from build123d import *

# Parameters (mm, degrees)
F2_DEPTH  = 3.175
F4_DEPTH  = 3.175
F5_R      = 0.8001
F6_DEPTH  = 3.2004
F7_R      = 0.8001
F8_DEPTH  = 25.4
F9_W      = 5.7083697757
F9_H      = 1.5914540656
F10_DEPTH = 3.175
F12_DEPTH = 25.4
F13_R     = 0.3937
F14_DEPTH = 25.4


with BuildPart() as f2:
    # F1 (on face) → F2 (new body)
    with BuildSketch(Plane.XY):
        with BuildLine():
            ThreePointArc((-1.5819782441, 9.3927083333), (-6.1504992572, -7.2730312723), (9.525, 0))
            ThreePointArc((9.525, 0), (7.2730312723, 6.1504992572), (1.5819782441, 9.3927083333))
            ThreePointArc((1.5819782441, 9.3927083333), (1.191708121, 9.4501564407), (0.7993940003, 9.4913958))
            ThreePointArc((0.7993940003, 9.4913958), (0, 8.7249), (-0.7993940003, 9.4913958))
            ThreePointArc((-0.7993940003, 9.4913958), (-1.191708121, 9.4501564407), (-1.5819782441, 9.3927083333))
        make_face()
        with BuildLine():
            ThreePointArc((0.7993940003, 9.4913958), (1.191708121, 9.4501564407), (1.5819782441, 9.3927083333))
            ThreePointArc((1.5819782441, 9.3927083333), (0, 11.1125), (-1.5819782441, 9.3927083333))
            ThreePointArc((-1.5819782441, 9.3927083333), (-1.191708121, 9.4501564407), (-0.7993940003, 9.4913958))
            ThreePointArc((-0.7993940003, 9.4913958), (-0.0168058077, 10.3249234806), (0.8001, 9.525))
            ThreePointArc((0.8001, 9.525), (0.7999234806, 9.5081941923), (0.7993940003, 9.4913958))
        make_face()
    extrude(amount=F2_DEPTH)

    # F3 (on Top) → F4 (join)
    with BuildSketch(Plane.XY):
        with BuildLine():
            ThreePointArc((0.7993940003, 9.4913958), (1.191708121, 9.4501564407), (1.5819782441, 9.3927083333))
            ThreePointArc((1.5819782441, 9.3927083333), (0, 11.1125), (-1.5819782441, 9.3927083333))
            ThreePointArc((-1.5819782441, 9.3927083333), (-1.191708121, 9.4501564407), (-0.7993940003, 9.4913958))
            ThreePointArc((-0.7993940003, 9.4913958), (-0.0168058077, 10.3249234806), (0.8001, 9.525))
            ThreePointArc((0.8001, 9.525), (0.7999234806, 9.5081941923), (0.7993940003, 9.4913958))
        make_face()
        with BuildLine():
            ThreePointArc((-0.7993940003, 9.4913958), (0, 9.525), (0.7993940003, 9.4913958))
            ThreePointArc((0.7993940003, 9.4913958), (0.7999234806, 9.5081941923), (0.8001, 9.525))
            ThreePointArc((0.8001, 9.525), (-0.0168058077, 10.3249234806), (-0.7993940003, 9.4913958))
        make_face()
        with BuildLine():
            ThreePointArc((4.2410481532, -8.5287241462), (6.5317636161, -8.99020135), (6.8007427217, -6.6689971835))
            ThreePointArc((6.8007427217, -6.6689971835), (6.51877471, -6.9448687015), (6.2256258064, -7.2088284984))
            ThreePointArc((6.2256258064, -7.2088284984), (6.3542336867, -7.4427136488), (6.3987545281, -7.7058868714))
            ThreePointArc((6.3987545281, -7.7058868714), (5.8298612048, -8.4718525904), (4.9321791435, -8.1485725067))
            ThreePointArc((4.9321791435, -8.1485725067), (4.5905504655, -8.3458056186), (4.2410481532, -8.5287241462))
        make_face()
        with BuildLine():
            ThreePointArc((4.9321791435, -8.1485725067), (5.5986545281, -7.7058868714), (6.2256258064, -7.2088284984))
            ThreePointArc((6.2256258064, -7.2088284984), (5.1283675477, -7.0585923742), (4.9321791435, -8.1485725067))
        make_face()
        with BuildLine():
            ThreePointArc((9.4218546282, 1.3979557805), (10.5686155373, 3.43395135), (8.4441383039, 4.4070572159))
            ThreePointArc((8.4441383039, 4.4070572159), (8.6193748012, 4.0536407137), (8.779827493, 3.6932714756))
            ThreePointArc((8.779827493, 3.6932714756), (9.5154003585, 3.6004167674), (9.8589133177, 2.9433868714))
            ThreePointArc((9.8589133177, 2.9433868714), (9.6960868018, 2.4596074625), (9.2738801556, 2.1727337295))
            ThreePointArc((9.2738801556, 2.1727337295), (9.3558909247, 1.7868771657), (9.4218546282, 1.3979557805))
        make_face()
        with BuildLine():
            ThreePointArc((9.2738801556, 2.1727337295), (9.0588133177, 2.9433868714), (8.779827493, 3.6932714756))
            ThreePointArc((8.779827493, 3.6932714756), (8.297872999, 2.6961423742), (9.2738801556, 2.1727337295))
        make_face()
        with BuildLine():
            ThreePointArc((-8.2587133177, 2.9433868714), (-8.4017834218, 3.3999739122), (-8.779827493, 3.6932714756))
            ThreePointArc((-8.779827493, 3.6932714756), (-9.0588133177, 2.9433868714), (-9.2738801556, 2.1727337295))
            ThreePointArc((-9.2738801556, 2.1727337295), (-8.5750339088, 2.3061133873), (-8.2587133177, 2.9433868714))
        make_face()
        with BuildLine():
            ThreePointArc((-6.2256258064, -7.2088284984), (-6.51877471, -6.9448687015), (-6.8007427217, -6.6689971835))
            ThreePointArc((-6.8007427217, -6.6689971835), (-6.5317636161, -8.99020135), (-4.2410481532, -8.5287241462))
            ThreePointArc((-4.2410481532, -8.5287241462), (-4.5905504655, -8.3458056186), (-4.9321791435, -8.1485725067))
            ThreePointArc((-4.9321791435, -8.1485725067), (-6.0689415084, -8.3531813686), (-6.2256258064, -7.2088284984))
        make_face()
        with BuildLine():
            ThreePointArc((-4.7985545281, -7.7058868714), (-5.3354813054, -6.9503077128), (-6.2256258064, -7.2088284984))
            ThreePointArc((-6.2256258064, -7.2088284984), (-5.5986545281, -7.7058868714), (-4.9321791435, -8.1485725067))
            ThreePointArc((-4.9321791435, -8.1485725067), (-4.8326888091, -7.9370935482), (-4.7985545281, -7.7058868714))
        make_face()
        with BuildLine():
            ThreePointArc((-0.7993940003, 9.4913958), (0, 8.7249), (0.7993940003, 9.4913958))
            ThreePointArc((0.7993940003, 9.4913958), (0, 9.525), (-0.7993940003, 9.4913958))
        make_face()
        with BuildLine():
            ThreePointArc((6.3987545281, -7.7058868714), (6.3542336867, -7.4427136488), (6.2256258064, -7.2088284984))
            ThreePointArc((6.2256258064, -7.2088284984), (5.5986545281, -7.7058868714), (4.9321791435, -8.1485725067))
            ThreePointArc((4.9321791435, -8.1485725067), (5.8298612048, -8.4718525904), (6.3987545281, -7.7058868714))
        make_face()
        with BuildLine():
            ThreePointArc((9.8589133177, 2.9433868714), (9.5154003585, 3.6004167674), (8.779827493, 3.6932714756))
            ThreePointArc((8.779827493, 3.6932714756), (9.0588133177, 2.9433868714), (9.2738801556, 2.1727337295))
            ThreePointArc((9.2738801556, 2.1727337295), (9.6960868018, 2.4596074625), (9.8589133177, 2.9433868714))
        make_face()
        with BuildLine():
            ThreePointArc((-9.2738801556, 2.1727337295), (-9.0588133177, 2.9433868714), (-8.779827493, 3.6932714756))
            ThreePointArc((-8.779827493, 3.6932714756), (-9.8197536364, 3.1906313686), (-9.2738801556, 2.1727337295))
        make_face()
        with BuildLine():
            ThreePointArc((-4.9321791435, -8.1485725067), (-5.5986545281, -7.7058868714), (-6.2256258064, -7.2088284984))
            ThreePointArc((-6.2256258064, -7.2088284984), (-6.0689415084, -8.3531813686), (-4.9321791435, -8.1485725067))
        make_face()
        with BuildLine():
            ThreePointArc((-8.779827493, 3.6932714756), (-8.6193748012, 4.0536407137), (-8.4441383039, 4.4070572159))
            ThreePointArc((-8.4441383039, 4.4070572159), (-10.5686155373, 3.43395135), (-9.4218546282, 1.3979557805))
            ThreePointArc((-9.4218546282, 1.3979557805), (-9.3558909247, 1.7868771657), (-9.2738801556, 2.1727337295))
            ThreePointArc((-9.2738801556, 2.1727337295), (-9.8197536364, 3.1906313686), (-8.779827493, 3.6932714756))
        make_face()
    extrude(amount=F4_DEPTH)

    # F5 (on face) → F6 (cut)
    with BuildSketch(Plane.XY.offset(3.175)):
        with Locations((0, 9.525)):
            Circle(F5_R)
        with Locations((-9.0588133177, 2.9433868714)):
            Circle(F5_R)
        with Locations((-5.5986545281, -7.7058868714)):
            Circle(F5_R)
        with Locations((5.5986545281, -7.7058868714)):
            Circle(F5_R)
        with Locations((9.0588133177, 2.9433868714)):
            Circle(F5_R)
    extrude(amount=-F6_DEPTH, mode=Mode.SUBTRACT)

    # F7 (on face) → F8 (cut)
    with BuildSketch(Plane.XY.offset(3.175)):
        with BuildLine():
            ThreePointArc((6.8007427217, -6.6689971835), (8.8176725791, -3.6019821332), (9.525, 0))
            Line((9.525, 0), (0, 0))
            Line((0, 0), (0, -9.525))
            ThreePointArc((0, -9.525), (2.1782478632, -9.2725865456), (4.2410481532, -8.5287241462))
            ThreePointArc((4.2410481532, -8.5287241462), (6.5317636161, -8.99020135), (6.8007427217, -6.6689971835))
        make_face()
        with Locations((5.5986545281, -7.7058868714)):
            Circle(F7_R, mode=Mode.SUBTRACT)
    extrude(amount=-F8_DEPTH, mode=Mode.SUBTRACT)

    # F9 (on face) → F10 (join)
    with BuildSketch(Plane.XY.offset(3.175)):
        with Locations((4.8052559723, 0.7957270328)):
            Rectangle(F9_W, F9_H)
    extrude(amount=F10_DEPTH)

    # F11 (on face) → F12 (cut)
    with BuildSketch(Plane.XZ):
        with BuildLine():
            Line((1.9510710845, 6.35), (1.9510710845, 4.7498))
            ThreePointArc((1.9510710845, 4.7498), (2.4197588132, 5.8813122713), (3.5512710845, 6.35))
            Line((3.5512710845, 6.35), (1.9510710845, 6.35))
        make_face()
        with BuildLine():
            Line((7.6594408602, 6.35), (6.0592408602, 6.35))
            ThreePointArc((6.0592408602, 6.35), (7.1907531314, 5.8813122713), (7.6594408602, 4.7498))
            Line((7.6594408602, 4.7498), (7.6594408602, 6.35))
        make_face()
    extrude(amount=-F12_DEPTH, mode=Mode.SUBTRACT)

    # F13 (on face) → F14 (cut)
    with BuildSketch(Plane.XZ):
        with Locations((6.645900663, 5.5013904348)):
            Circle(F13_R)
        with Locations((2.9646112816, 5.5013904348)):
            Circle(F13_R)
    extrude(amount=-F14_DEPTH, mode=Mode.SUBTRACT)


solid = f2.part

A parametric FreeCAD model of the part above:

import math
import FreeCAD as App
import Part
import Sketcher
Q = App.Units.Quantity


def add_polygon(sketch, points):
    """Adds a closed chain of lines whose ends are joined by coincident constraints."""
    first, n = sketch.GeometryCount, len(points)
    for a, b in zip(points, points[1:] + points[:1]):
        sketch.addGeometry(Part.LineSegment(App.Vector(*a, 0), App.Vector(*b, 0)), False)
    for i in range(n):
        sketch.addConstraint(Sketcher.Constraint("Coincident", first + i, 2, first + (i + 1) % n, 1))

doc = App.newDocument("Part")
body = doc.addObject("PartDesign::Body", "Body")

sketch1 = doc.addObject("Sketcher::SketchObject", "Sketch")
body.addObject(sketch1)
sketch1.AttachmentSupport = (doc.XY_Plane, [""])
sketch1.MapMode = "FlatFace"
sketch1.addGeometry([
    Part.ArcOfCircle(Part.Circle(App.Vector(0, 0, 0), App.Vector(0, 0, 1), 9.525), math.radians(99.560384), math.radians(360)),
    Part.ArcOfCircle(Part.Circle(App.Vector(0, 0, 0), App.Vector(0, 0, 1), 9.525), math.radians(0), math.radians(80.439616)),
    Part.ArcOfCircle(Part.Circle(App.Vector(0, 9.525, 0), App.Vector(0, 0, 1), 1.5875), math.radians(-4.780192), math.radians(184.780192)),
    Part.ArcOfCircle(Part.Circle(App.Vector(0, 9.525, 0), App.Vector(0, 0, 1), 0.8001), math.radians(-177.592869), math.radians(-2.407131)),
    Part.ArcOfCircle(Part.Circle(App.Vector(0, 9.525, 0), App.Vector(0, 0, 1), 0.8001), math.radians(0), math.radians(182.407131)),
    Part.ArcOfCircle(Part.Circle(App.Vector(0, 9.525, 0), App.Vector(0, 0, 1), 0.8001), math.radians(-2.407131), math.radians(0)),
], False)
sketch1.addConstraint([
    Sketcher.Constraint("Tangent", 0, 2, 1, 1),
    Sketcher.Constraint("Coincident", 1, 2, 2, 1),
    Sketcher.Constraint("Coincident", 2, 2, 0, 1),
    Sketcher.Constraint("Tangent", 3, 1, 4, 2),
    Sketcher.Constraint("Tangent", 4, 1, 5, 2),
    Sketcher.Constraint("Tangent", 5, 1, 3, 2),
    Sketcher.Constraint("Coincident", 0, 3, -1, 1),
    Sketcher.Constraint("Coincident", 3, 3, 2, 3),
    Sketcher.Constraint("Equal", 0, 1),
    Sketcher.Constraint("Symmetric", 3, 1, 5, 1, -2),
    Sketcher.Constraint("PointOnObject", 0, 2, -1),
    Sketcher.Constraint("Horizontal", 5, 3, 4, 1),
    Sketcher.Constraint("Radius", 0, Q("0.375 in")),
    Sketcher.Constraint("Radius", 2, Q("0.0625 in")),
    Sketcher.Constraint("Radius", 3, Q("0.0315 in")),
    Sketcher.Constraint("DistanceY", -1, 1, 2, 3, Q("0.375 in")),
    Sketcher.Constraint("DistanceX", 3, 1, -1, 1, 0.799394),
])
pad1 = doc.addObject("PartDesign::Pad", "Pad")
body.addObject(pad1)
pad1.Profile = sketch1
pad1.Length = Q("0.125 in")

sketch2 = doc.addObject("Sketcher::SketchObject", "Sketch001")
body.addObject(sketch2)
sketch2.AttachmentSupport = (doc.XY_Plane, [""])
sketch2.MapMode = "FlatFace"
sketch2.addGeometry([
    Part.ArcOfCircle(Part.Circle(App.Vector(0, 0, 0), App.Vector(0, 0, 1), 9.525), math.radians(80.439616), math.radians(85.185738)),
    Part.ArcOfCircle(Part.Circle(App.Vector(0, 9.525, 0), App.Vector(0, 0, 1), 1.5875), math.radians(-4.780192), math.radians(184.780192)),
    Part.ArcOfCircle(Part.Circle(App.Vector(0, 0, 0), App.Vector(0, 0, 1), 9.525), math.radians(94.814262), math.radians(99.560384)),
    Part.ArcOfCircle(Part.Circle(App.Vector(0, 9.525, 0), App.Vector(0, 0, 1), 0.8001), math.radians(-177.592869), math.radians(-2.407131)),
    Part.ArcOfCircle(Part.Circle(App.Vector(5.598655, -7.705887, 0), App.Vector(0, 0, 1), 1.5875), math.radians(-148.780192), math.radians(40.780192)),
    Part.ArcOfCircle(Part.Circle(App.Vector(0, 0, 0), App.Vector(0, 0, 1), 9.525), math.radians(-49.185738), math.radians(-44.439616)),
    Part.ArcOfCircle(Part.Circle(App.Vector(5.598655, -7.705887, 0), App.Vector(0, 0, 1), 0.8001), math.radians(38.407131), math.radians(213.592869)),
    Part.ArcOfCircle(Part.Circle(App.Vector(0, 0, 0), App.Vector(0, 0, 1), 9.525), math.radians(-63.560384), math.radians(-58.814262)),
    Part.ArcOfCircle(Part.Circle(App.Vector(9.058813, 2.943387, 0), App.Vector(0, 0, 1), 1.5875), math.radians(-76.780192), math.radians(112.780192)),
    Part.ArcOfCircle(Part.Circle(App.Vector(0, 0, 0), App.Vector(0, 0, 1), 9.525), math.radians(22.814262), math.radians(27.560384)),
    Part.ArcOfCircle(Part.Circle(App.Vector(9.058813, 2.943387, 0), App.Vector(0, 0, 1), 0.8001), math.radians(110.407131), math.radians(285.592869)),
    Part.ArcOfCircle(Part.Circle(App.Vector(0, 0, 0), App.Vector(0, 0, 1), 9.525), math.radians(8.439616), math.radians(13.185738)),
    Part.ArcOfCircle(Part.Circle(App.Vector(-9.058813, 2.943387, 0), App.Vector(0, 0, 1), 0.8001), math.radians(0), math.radians(69.592869)),
    Part.ArcOfCircle(Part.Circle(App.Vector(0, 0, 0), App.Vector(0, 0, 1), 9.525), math.radians(152.439616), math.radians(157.185738)),
    Part.ArcOfCircle(Part.Circle(App.Vector(-9.058813, 2.943387, 0), App.Vector(0, 0, 1), 1.5875), math.radians(67.219808), math.radians(256.780192)),
    Part.ArcOfCircle(Part.Circle(App.Vector(0, 0, 0), App.Vector(0, 0, 1), 9.525), math.radians(166.814262), math.radians(171.560384)),
    Part.ArcOfCircle(Part.Circle(App.Vector(-9.058813, 2.943387, 0), App.Vector(0, 0, 1), 0.8001), math.radians(-105.592869), math.radians(0)),
    Part.ArcOfCircle(Part.Circle(App.Vector(0, 0, 0), App.Vector(0, 0, 1), 9.525), math.radians(-135.560384), math.radians(-130.814262)),
    Part.ArcOfCircle(Part.Circle(App.Vector(-5.598655, -7.705887, 0), App.Vector(0, 0, 1), 1.5875), math.radians(139.219808), math.radians(328.780192)),
    Part.ArcOfCircle(Part.Circle(App.Vector(0, 0, 0), App.Vector(0, 0, 1), 9.525), math.radians(-121.185738), math.radians(-116.439616)),
    Part.ArcOfCircle(Part.Circle(App.Vector(-5.598655, -7.705887, 0), App.Vector(0, 0, 1), 0.8001), math.radians(-33.592869), math.radians(0)),
    Part.ArcOfCircle(Part.Circle(App.Vector(-5.598655, -7.705887, 0), App.Vector(0, 0, 1), 0.8001), math.radians(0), math.radians(141.592869)),
], False)
sketch2.addConstraint([
    Sketcher.Constraint("Coincident", 0, 1, 1, 1),
    Sketcher.Constraint("Coincident", 1, 2, 2, 2),
    Sketcher.Constraint("Coincident", 2, 1, 3, 1),
    Sketcher.Constraint("Coincident", 3, 2, 0, 2),
    Sketcher.Constraint("Coincident", 4, 2, 5, 2),
    Sketcher.Constraint("Coincident", 5, 1, 6, 1),
    Sketcher.Constraint("Coincident", 6, 2, 7, 2),
    Sketcher.Constraint("Coincident", 7, 1, 4, 1),
    Sketcher.Constraint("Coincident", 8, 2, 9, 2),
    Sketcher.Constraint("Coincident", 9, 1, 10, 1),
    Sketcher.Constraint("Coincident", 10, 2, 11, 2),
    Sketcher.Constraint("Coincident", 11, 1, 8, 1),
    Sketcher.Constraint("Coincident", 12, 2, 13, 2),
    Sketcher.Constraint("Coincident", 13, 1, 14, 1),
    Sketcher.Constraint("Coincident", 14, 2, 15, 2),
    Sketcher.Constraint("Coincident", 15, 1, 16, 1),
    Sketcher.Constraint("Tangent", 16, 2, 12, 1),
    Sketcher.Constraint("Coincident", 17, 1, 18, 1),
    Sketcher.Constraint("Coincident", 18, 2, 19, 2),
    Sketcher.Constraint("Coincident", 19, 1, 20, 1),
    Sketcher.Constraint("Tangent", 20, 2, 21, 1),
    Sketcher.Constraint("Coincident", 21, 2, 17, 2),
    Sketcher.Constraint("Coincident", 0, 3, -1, 1),
    Sketcher.Constraint("Coincident", 2, 3, -1, 1),
    Sketcher.Constraint("Coincident", 5, 3, -1, 1),
    Sketcher.Constraint("Coincident", 7, 3, -1, 1),
    Sketcher.Constraint("Coincident", 9, 3, -1, 1),
    Sketcher.Constraint("Coincident", 11, 3, -1, 1),
    Sketcher.Constraint("Coincident", 13, 3, -1, 1),
    Sketcher.Constraint("Coincident", 15, 3, -1, 1),
    Sketcher.Constraint("Coincident", 17, 3, -1, 1),
    Sketcher.Constraint("Coincident", 19, 3, -1, 1),
    Sketcher.Constraint("Coincident", 3, 3, 1, 3),
    Sketcher.Constraint("Coincident", 6, 3, 4, 3),
    Sketcher.Constraint("Coincident", 10, 3, 8, 3),
    Sketcher.Constraint("Coincident", 14, 3, 12, 3),
    Sketcher.Constraint("Coincident", 20, 3, 18, 3),
    Sketcher.Constraint("Equal", 0, 2),
    Sketcher.Constraint("Equal", 1, 4),
    Sketcher.Constraint("Equal", 2, 5),
    Sketcher.Constraint("Equal", 3, 6),
    Sketcher.Constraint("Equal", 5, 7),
    Sketcher.Constraint("Equal", 4, 8),
    Sketcher.Constraint("Equal", 7, 9),
    Sketcher.Constraint("Equal", 6, 10),
    Sketcher.Constraint("Equal", 9, 11),
    Sketcher.Constraint("Equal", 10, 12),
    Sketcher.Constraint("Equal", 11, 13),
    Sketcher.Constraint("Equal", 8, 14),
    Sketcher.Constraint("Equal", 13, 15),
    Sketcher.Constraint("Equal", 12, 16),
    Sketcher.Constraint("Equal", 15, 17),
    Sketcher.Constraint("Equal", 14, 18),
    Sketcher.Constraint("Equal", 17, 19),
    Sketcher.Constraint("Equal", 16, 20),
    Sketcher.Constraint("Equal", 20, 21),
    Sketcher.Constraint("Symmetric", 8, 3, 12, 3, -2),
    Sketcher.Constraint("Symmetric", 4, 3, 18, 3, -2),
    Sketcher.Constraint("PointOnObject", 1, 3, -2),
    Sketcher.Constraint("Horizontal", 14, 3, 16, 2),
    Sketcher.Constraint("Horizontal", 21, 3, 20, 2),
    Sketcher.Constraint("Radius", 0, Q("0.375 in")),
    Sketcher.Constraint("Radius", 1, Q("0.0625 in")),
    Sketcher.Constraint("Radius", 3, Q("0.0315 in")),
    Sketcher.Constraint("DistanceY", -1, 1, 1, 3, Q("0.375 in")),
    Sketcher.Constraint("DistanceX", 8, 2, 8, 3, Q("0.0241998 in")),
    Sketcher.Constraint("DistanceY", 11, 1, 8, 2, 3.009101),
    Sketcher.Constraint("DistanceY", 5, 1, -1, 1, 7.208828),
    Sketcher.Constraint("DistanceX", -1, 1, 6, 2, 4.932179),
])
pad2 = doc.addObject("PartDesign::Pad", "Pad001")
body.addObject(pad2)
pad2.Profile = sketch2
pad2.Length = Q("0.125 in")

sketch3 = doc.addObject("Sketcher::SketchObject", "Sketch002")
body.addObject(sketch3)
sketch3.AttachmentSupport = (doc.XY_Plane, [""])
sketch3.MapMode = "FlatFace"
sketch3.AttachmentOffset = App.Placement(App.Vector(0, 0, 0.125 * 25.4), App.Rotation())
sketch3.addGeometry([
    Part.Circle(App.Vector(0, 9.525, 0), App.Vector(0, 0, 1), 0.8001),
    Part.Circle(App.Vector(-9.058813, 2.943387, 0), App.Vector(0, 0, 1), 0.8001),
    Part.Circle(App.Vector(-5.598655, -7.705887, 0), App.Vector(0, 0, 1), 0.8001),
    Part.Circle(App.Vector(5.598655, -7.705887, 0), App.Vector(0, 0, 1), 0.8001),
    Part.Circle(App.Vector(9.058813, 2.943387, 0), App.Vector(0, 0, 1), 0.8001),
], False)
sketch3.addConstraint([
    Sketcher.Constraint("Equal", 0, 1),
    Sketcher.Constraint("Equal", 1, 2),
    Sketcher.Constraint("Equal", 2, 3),
    Sketcher.Constraint("Equal", 3, 4),
    Sketcher.Constraint("Symmetric", 2, 3, 3, 3, -2),
    Sketcher.Constraint("Symmetric", 1, 3, 4, 3, -2),
    Sketcher.Constraint("PointOnObject", 0, 3, -2),
    Sketcher.Constraint("Diameter", 0, Q("0.063 in")),
    Sketcher.Constraint("DistanceY", -1, 1, 0, 3, Q("0.375 in")),
    Sketcher.Constraint("DistanceX", 1, 3, 2, 3, 3.460159),
    Sketcher.Constraint("DistanceX", 2, 3, 3, 3, 11.197309),
    Sketcher.Constraint("DistanceY", -1, 1, 1, 3, 2.943387),
    Sketcher.Constraint("DistanceY", 2, 3, -1, 1, 7.705887),
])
pocket1 = doc.addObject("PartDesign::Pocket", "Pocket")
body.addObject(pocket1)
pocket1.Profile = sketch3
pocket1.Length = Q("0.126 in")

sketch4 = doc.addObject("Sketcher::SketchObject", "Sketch003")
body.addObject(sketch4)
sketch4.AttachmentSupport = (doc.XY_Plane, [""])
sketch4.MapMode = "FlatFace"
sketch4.AttachmentOffset = App.Placement(App.Vector(0, 0, 0.125 * 25.4), App.Rotation())
sketch4.addGeometry([
    Part.ArcOfCircle(Part.Circle(App.Vector(0, 0, 0), App.Vector(0, 0, 1), 9.525), math.radians(-44.439616), math.radians(0)),
    Part.LineSegment(App.Vector(9.525, 0, 0), App.Vector(0, 0, 0)),
    Part.LineSegment(App.Vector(0, 0, 0), App.Vector(0, -9.525, 0)),
    Part.ArcOfCircle(Part.Circle(App.Vector(0, 0, 0), App.Vector(0, 0, 1), 9.525), math.radians(-90), math.radians(-63.560384)),
    Part.ArcOfCircle(Part.Circle(App.Vector(5.598655, -7.705887, 0), App.Vector(0, 0, 1), 1.5875), math.radians(-148.780192), math.radians(40.780192)),
    Part.Circle(App.Vector(5.598655, -7.705887, 0), App.Vector(0, 0, 1), 0.8001),
], False)
sketch4.addConstraint([
    Sketcher.Constraint("Coincident", 0, 2, 1, 1),
    Sketcher.Constraint("Coincident", 1, 2, 2, 1),
    Sketcher.Constraint("Coincident", 2, 2, 3, 1),
    Sketcher.Constraint("Coincident", 3, 2, 4, 1),
    Sketcher.Constraint("Coincident", 4, 2, 0, 1),
    Sketcher.Constraint("Horizontal", 1),
    Sketcher.Constraint("Vertical", 2),
    Sketcher.Constraint("Coincident", 0, 3, -1, 1),
    Sketcher.Constraint("Coincident", 3, 3, -1, 1),
    Sketcher.Constraint("Coincident", 1, 2, -1, 1),
    Sketcher.Constraint("Coincident", 5, 3, 4, 3),
    Sketcher.Constraint("Equal", 0, 3),
    Sketcher.Constraint("Diameter", 5, Q("0.063 in")),
    Sketcher.Constraint("Radius", 0, Q("0.375 in")),
    Sketcher.Constraint("Radius", 4, Q("0.0625 in")),
    Sketcher.Constraint("DistanceX", -1, 1, 3, 2, 4.241048),
    Sketcher.Constraint("DistanceX", 4, 3, 4, 2, 1.202088),
])
pocket2 = doc.addObject("PartDesign::Pocket", "Pocket001")
body.addObject(pocket2)
pocket2.Profile = sketch4
pocket2.Length = Q("1 in")

sketch5 = doc.addObject("Sketcher::SketchObject", "Sketch004")
body.addObject(sketch5)
sketch5.AttachmentSupport = (doc.XY_Plane, [""])
sketch5.MapMode = "FlatFace"
sketch5.AttachmentOffset = App.Placement(App.Vector(0, 0, 0.125 * 25.4), App.Rotation())
add_polygon(sketch5, [(1.951071, 1.591454), (1.951071, 0), (7.659441, 0), (7.659441, 1.591454)])
sketch5.addConstraint([
    Sketcher.Constraint("Vertical", 0),
    Sketcher.Constraint("Horizontal", 1),
    Sketcher.Constraint("Vertical", 2),
    Sketcher.Constraint("Horizontal", 3),
    Sketcher.Constraint("PointOnObject", 0, 2, -1),
    Sketcher.Constraint("DistanceX", 1, 1, 1, 2, 5.70837),
    Sketcher.Constraint("DistanceY", 0, 2, 0, 1, 1.591454),
    Sketcher.Constraint("DistanceX", -1, 1, 0, 2, 1.951071),
])
pad3 = doc.addObject("PartDesign::Pad", "Pad002")
body.addObject(pad3)
pad3.Profile = sketch5
pad3.Length = Q("0.125 in")

sketch6 = doc.addObject("Sketcher::SketchObject", "Sketch005")
body.addObject(sketch6)
sketch6.AttachmentSupport = (doc.XZ_Plane, [""])
sketch6.MapMode = "FlatFace"
sketch6.addGeometry([
    Part.LineSegment(App.Vector(1.951071, 6.35, 0), App.Vector(1.951071, 4.7498, 0)),
    Part.ArcOfCircle(Part.Circle(App.Vector(3.551271, 4.7498, 0), App.Vector(0, 0, 1), 1.6002), math.radians(90), math.radians(180)),
    Part.LineSegment(App.Vector(3.551271, 6.35, 0), App.Vector(1.951071, 6.35, 0)),
    Part.LineSegment(App.Vector(7.659441, 6.35, 0), App.Vector(6.059241, 6.35, 0)),
    Part.ArcOfCircle(Part.Circle(App.Vector(6.059241, 4.7498, 0), App.Vector(0, 0, 1), 1.6002), math.radians(0), math.radians(90)),
    Part.LineSegment(App.Vector(7.659441, 4.7498, 0), App.Vector(7.659441, 6.35, 0)),
], False)
sketch6.addConstraint([
    Sketcher.Constraint("Tangent", 0, 2, 1, 2),
    Sketcher.Constraint("Tangent", 1, 1, 2, 1),
    Sketcher.Constraint("Coincident", 2, 2, 0, 1),
    Sketcher.Constraint("Tangent", 3, 2, 4, 2),
    Sketcher.Constraint("Tangent", 4, 1, 5, 1),
    Sketcher.Constraint("Coincident", 5, 2, 3, 1),
    Sketcher.Constraint("Vertical", 0),
    Sketcher.Constraint("Horizontal", 2),
    Sketcher.Constraint("Horizontal", 3),
    Sketcher.Constraint("Vertical", 5),
    Sketcher.Constraint("Equal", 1, 4),
    Sketcher.Constraint("Horizontal", 1, 3, 4, 3),
    Sketcher.Constraint("Radius", 1, Q("0.063 in")),
    Sketcher.Constraint("DistanceY", -1, 1, 1, 1, Q("0.25 in")),
    Sketcher.Constraint("DistanceX", -1, 1, 1, 3, 3.551271),
    Sketcher.Constraint("DistanceX", -1, 1, 4, 3, 6.059241),
])
pocket3 = doc.addObject("PartDesign::Pocket", "Pocket002")
body.addObject(pocket3)
pocket3.Profile = sketch6
pocket3.Length = Q("1 in")

sketch7 = doc.addObject("Sketcher::SketchObject", "Sketch006")
body.addObject(sketch7)
sketch7.AttachmentSupport = (doc.XZ_Plane, [""])
sketch7.MapMode = "FlatFace"
sketch7.addGeometry([
    Part.Circle(App.Vector(6.645901, 5.50139, 0), App.Vector(0, 0, 1), 0.3937),
    Part.Circle(App.Vector(2.964611, 5.50139, 0), App.Vector(0, 0, 1), 0.3937),
], False)
sketch7.addConstraint([
    Sketcher.Constraint("Equal", 0, 1),
    Sketcher.Constraint("Horizontal", 0, 3, 1, 3),
    Sketcher.Constraint("Diameter", 0, Q("0.031 in")),
    Sketcher.Constraint("DistanceX", -1, 1, 0, 3, 6.645901),
    Sketcher.Constraint("DistanceY", -1, 1, 0, 3, 5.50139),
    Sketcher.Constraint("DistanceX", -1, 1, 1, 3, 2.964611),
])
pocket4 = doc.addObject("PartDesign::Pocket", "Pocket003")
body.addObject(pocket4)
pocket4.Profile = sketch7
pocket4.Length = Q("1 in")

doc.recompute()
